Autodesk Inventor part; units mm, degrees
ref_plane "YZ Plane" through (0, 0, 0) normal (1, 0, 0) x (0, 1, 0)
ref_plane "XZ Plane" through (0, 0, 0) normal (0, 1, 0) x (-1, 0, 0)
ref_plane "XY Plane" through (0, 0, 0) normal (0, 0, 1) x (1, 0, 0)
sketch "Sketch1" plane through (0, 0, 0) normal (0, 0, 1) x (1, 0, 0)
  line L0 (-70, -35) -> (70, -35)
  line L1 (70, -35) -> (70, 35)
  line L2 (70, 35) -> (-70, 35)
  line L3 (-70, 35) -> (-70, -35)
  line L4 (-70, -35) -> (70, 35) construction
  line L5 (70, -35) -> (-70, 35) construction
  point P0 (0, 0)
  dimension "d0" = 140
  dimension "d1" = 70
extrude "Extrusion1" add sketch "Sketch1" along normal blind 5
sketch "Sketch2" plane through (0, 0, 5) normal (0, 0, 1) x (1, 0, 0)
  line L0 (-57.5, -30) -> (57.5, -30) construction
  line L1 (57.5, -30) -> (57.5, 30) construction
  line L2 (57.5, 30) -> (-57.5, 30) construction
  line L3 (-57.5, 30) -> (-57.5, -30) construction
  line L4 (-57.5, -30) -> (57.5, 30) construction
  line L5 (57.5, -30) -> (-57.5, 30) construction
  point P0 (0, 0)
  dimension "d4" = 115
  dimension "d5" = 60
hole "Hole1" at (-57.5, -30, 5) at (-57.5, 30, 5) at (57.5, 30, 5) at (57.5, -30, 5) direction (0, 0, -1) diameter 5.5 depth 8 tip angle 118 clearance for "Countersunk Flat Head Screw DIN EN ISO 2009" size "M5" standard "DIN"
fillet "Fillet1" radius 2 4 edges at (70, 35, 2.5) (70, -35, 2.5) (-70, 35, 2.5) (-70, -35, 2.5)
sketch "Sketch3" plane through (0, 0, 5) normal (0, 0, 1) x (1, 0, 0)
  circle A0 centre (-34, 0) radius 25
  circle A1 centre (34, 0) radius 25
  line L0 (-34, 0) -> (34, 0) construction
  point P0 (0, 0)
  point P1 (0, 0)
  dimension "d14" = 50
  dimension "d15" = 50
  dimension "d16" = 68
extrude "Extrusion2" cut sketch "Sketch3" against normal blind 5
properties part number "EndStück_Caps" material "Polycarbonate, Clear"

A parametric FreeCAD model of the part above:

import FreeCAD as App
import Part
import Sketcher
from FreeCAD import Vector


def edges_at(feature, points):
    """Names of the edges that pass closest to the given points."""
    edges = feature.Shape.Edges
    near = lambda p: min(range(len(edges)), key=lambda i: edges[i].distToShape(Part.Vertex(*p))[0])
    return sorted({f"Edge{near(p) + 1}" for p in points})


def add_polygon(sketch, points):
    """Adds a closed chain of lines whose ends are joined by coincident constraints."""
    first, n = sketch.GeometryCount, len(points)
    for a, b in zip(points, points[1:] + points[:1]):
        sketch.addGeometry(Part.LineSegment(App.Vector(*a, 0), App.Vector(*b, 0)), False)
    for i in range(n):
        sketch.addConstraint(Sketcher.Constraint("Coincident", first + i, 2, first + (i + 1) % n, 1))

doc = App.newDocument("Part")
body = doc.addObject("PartDesign::Body", "Body")

sketch1 = body.newObject("Sketcher::SketchObject", "Sketch")
sketch1.AttachmentSupport = (doc.getObject("XY_Plane"), [""])
sketch1.MapMode = "FlatFace"
add_polygon(sketch1, [(-70, 35), (-70, -35), (70, -35), (70, 35)])
sketch1.addConstraint([
    Sketcher.Constraint("Vertical", 0),
    Sketcher.Constraint("Horizontal", 1),
    Sketcher.Constraint("Vertical", 2),
    Sketcher.Constraint("Horizontal", 3),
    Sketcher.Constraint("Symmetric", 0, 2, 2, 2, -1, 1),
    Sketcher.Constraint("DistanceX", 1, 1, 1, 2, 140.0),
    Sketcher.Constraint("DistanceY", 0, 2, 0, 1, 70.0),
])
pad1 = body.newObject("PartDesign::Pad", "Pad")
pad1.Profile = sketch1
pad1.Length = 5

sketch2 = body.newObject("Sketcher::SketchObject", "Sketch001")
sketch2.AttachmentSupport = (doc.getObject("XY_Plane"), [""])
sketch2.MapMode = "FlatFace"
sketch2.AttachmentOffset = App.Placement(Vector(0, 0, 5), App.Rotation())
sketch2.addGeometry([
    Part.Circle(Vector(-57.5, -30, 0), Vector(0, 0, 1), 2.8),
    Part.Circle(Vector(-57.5, 30, 0), Vector(0, 0, 1), 2.8),
    Part.Circle(Vector(57.5, 30, 0), Vector(0, 0, 1), 2.8),
    Part.Circle(Vector(57.5, -30, 0), Vector(0, 0, 1), 2.8),
], False)
sketch2.addConstraint([
    Sketcher.Constraint("Equal", 0, 1),
    Sketcher.Constraint("Equal", 1, 2),
    Sketcher.Constraint("Equal", 2, 3),
    Sketcher.Constraint("Symmetric", 0, 3, 2, 3, -1, 1),
    Sketcher.Constraint("Symmetric", 1, 3, 3, 3, -1, 1),
    Sketcher.Constraint("Symmetric", 1, 3, 2, 3, -2),
    Sketcher.Constraint("Diameter", 0, 5.5),
    Sketcher.Constraint("DistanceY", 0, 3, -1, 1, 30.0),
    Sketcher.Constraint("DistanceX", 1, 3, 2, 3, 115.0),
])
doc.recompute()
hole = body.newObject("PartDesign::Hole", "Hole")
hole.Profile = sketch2
hole.ThreadType = "None"
hole.Diameter = 5.5
hole.DepthType = "Dimension"
hole.Depth = 8
hole.DrillPoint = "Angled"
hole.DrillPointAngle = 118
doc.recompute()

fillet = body.newObject("PartDesign::Fillet", "Fillet")
fillet.Base = (hole, edges_at(hole, [
    (70, 35, 2.5),
    (70, -35, 2.5),
    (-70, 35, 2.5),
    (-70, -35, 2.5),
]))
fillet.Radius = 2

sketch3 = body.newObject("Sketcher::SketchObject", "Sketch002")
sketch3.AttachmentSupport = (doc.getObject("XY_Plane"), [""])
sketch3.MapMode = "FlatFace"
sketch3.AttachmentOffset = App.Placement(Vector(0, 0, 5), App.Rotation())
sketch3.addGeometry([
    Part.Circle(Vector(-34, 0, 0), Vector(0, 0, 1), 25),
    Part.Circle(Vector(34, 0, 0), Vector(0, 0, 1), 25),
], False)
sketch3.addConstraint([
    Sketcher.Constraint("Equal", 0, 1),
    Sketcher.Constraint("Symmetric", 0, 3, 1, 3, -1, 1),
    Sketcher.Constraint("PointOnObject", 0, 3, -1),
    Sketcher.Constraint("Diameter", 0, 50.0),
    Sketcher.Constraint("DistanceX", 0, 3, 1, 3, 68.0),
])
pocket1 = body.newObject("PartDesign::Pocket", "Pocket")
pocket1.Profile = sketch3
pocket1.Length = 5

doc.recompute()
